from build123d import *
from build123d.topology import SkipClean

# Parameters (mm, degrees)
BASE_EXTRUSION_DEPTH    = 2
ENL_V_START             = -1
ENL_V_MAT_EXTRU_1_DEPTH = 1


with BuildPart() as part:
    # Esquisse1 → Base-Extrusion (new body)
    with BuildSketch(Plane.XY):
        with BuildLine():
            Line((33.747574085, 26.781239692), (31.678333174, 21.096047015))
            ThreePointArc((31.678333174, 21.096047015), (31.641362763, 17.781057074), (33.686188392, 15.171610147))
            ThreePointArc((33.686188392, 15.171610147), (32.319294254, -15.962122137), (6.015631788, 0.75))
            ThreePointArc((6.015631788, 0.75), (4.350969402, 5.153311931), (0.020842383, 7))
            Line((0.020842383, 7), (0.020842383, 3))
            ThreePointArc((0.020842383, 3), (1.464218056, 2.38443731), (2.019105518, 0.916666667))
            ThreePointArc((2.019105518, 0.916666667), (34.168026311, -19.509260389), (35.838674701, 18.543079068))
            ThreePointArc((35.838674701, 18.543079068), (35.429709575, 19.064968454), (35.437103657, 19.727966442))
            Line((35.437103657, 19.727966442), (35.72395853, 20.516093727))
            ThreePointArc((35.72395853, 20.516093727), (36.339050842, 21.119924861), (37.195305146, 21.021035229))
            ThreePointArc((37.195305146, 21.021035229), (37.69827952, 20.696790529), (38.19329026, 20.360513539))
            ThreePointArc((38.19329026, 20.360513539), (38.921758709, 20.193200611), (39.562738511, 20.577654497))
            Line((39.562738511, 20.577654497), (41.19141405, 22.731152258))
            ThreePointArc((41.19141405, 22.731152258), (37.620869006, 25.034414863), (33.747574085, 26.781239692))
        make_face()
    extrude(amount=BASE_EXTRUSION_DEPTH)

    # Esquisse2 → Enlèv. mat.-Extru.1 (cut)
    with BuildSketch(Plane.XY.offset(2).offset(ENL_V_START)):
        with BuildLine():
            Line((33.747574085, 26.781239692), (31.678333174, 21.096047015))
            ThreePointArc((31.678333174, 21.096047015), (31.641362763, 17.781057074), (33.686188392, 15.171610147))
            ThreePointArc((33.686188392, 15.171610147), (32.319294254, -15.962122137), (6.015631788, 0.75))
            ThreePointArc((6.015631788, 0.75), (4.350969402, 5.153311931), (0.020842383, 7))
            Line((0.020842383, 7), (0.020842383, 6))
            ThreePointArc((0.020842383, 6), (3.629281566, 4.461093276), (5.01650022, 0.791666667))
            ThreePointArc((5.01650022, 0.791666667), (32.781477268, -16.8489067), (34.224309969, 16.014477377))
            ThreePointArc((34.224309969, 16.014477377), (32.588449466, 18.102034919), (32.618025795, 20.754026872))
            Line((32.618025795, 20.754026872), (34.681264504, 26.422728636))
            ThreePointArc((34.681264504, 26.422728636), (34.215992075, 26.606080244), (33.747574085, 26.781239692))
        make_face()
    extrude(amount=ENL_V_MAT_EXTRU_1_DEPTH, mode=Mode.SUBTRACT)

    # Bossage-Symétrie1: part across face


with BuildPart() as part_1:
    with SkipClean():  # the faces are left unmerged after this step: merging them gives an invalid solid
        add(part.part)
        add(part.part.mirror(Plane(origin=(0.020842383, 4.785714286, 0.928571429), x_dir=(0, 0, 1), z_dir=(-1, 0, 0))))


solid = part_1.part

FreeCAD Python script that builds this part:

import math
import FreeCAD as App
import Part
import Sketcher
Q = App.Units.Quantity

doc = App.newDocument("Part")
body = doc.addObject("PartDesign::Body", "Body")

# Sketch on XY plane
sketch1 = body.newObject("Sketcher::SketchObject", "Sketch")
sketch1.AttachmentSupport = (doc.getObject("XY_Plane"), [""])
sketch1.MapMode = "FlatFace"
sketch1.addGeometry([
    Part.LineSegment(App.Vector(33.747574, 26.78124, 0), App.Vector(31.678333, 21.096047, 0)),  # 0
    Part.ArcOfCircle(Part.Circle(App.Vector(36.376796, 19.385946, 0), App.Vector(0, 0, 1), 5), math.radians(160), math.radians(237.444142)),  # 1
    Part.ArcOfCircle(Part.Circle(App.Vector(24, 0, 0), App.Vector(0, 0, 1), 18), math.radians(177.611985), math.radians(417.444142)),  # 2
    Part.ArcOfCircle(Part.Circle(App.Vector(0.020842, 1, 0), App.Vector(0, 0, 1), 6), math.radians(-2.388015), math.radians(90)),  # 3
    Part.LineSegment(App.Vector(0.020842, 7, 0), App.Vector(0.020842, 3, 0)),  # 4
    Part.ArcOfCircle(Part.Circle(App.Vector(0.020842, 1, 0), App.Vector(0, 0, 1), 2), math.radians(-2.388015), math.radians(90)),  # 5
    Part.ArcOfCircle(Part.Circle(App.Vector(24, 0, 0), App.Vector(0, 0, 1), 22), math.radians(177.611985), math.radians(417.444142)),  # 6
    Part.ArcOfCircle(Part.Circle(App.Vector(36.376796, 19.385946, 0), App.Vector(0, 0, 1), 1), math.radians(160), math.radians(237.444142)),  # 7
    Part.LineSegment(App.Vector(35.437104, 19.727966, 0), App.Vector(35.723959, 20.516094, 0)),  # 8
    Part.ArcOfCircle(Part.Circle(App.Vector(36.663651, 20.174074, 0), App.Vector(0, 0, 1), 1), math.radians(57.882723), math.radians(160)),  # 9
    Part.ArcOfCircle(Part.Circle(App.Vector(24.000001, 0.000001, 0), App.Vector(0, 0, 1), 24.819346), math.radians(55.119692), math.radians(57.882723)),  # 10
    Part.ArcOfCircle(Part.Circle(App.Vector(38.765154, 21.180862, 0), App.Vector(0, 0, 1), 1), math.radians(-124.880308), math.radians(-37.099966)),  # 11
    Part.LineSegment(App.Vector(39.562739, 20.577654, 0), App.Vector(41.191414, 22.731152, 0)),  # 12
    Part.ArcOfCircle(Part.Circle(App.Vector(24, 0, 0), App.Vector(0, 0, 1), 28.5), math.radians(52.900034), math.radians(70)),  # 13
], False)
sketch1.addConstraint([
    Sketcher.Constraint("Tangent", 0, 2, 1, 1),
    Sketcher.Constraint("Tangent", 1, 2, 2, 2),
    Sketcher.Constraint("Tangent", 2, 1, 3, 1),
    Sketcher.Constraint("Coincident", 3, 2, 4, 1),
    Sketcher.Constraint("Coincident", 4, 2, 5, 2),
    Sketcher.Constraint("Tangent", 5, 1, 6, 1),
    Sketcher.Constraint("Tangent", 6, 2, 7, 2),
    Sketcher.Constraint("Tangent", 7, 1, 8, 1),
    Sketcher.Constraint("Tangent", 8, 2, 9, 2),
    Sketcher.Constraint("Tangent", 9, 1, 10, 2),
    Sketcher.Constraint("Tangent", 10, 1, 11, 1),
    Sketcher.Constraint("Tangent", 11, 2, 12, 1),
    Sketcher.Constraint("Coincident", 12, 2, 13, 1),
    Sketcher.Constraint("Coincident", 13, 2, 0, 1),
    Sketcher.Constraint("Vertical", 4),
    Sketcher.Constraint("Coincident", 5, 3, 3, 3),
    Sketcher.Constraint("Coincident", 6, 3, 2, 3),
    Sketcher.Constraint("Coincident", 7, 3, 1, 3),
    Sketcher.Constraint("Coincident", 10, 3, 2, 3),
    Sketcher.Constraint("Coincident", 13, 3, 2, 3),
    Sketcher.Constraint("Equal", 7, 9),
    Sketcher.Constraint("Equal", 9, 11),
    Sketcher.Constraint("PointOnObject", 2, 3, -1),
    Sketcher.Constraint("Parallel", 0, 8),
    Sketcher.Constraint("Vertical", 5, 3, 3, 2),
    Sketcher.Constraint("Radius", 1, 5.0),
    Sketcher.Constraint("Radius", 2, 18.0),
    Sketcher.Constraint("Radius", 3, 6.0),
    Sketcher.Constraint("Radius", 5, 2.0),
    Sketcher.Constraint("Radius", 13, 28.5),
    Sketcher.Constraint("Angle", 0, Q("-110 deg")),
    Sketcher.Constraint("DistanceX", -1, 1, 2, 3, 24.0),
    Sketcher.Constraint("DistanceY", -1, 1, 3, 3, 1.0),
    Sketcher.Constraint("Radius", 10, 24.819346),
    Sketcher.Constraint("DistanceX", -1, 1, 9, 3, 36.663651),
    Sketcher.Constraint("DistanceX", -1, 1, 10, 1, 38.19329),
    Sketcher.Constraint("DistanceX", -1, 1, 11, 2, 39.562739),
])
pad1 = body.newObject("PartDesign::Pad", "Pad")
pad1.Profile = sketch1
pad1.Length = 2

# Sketch on XY plane
sketch2 = body.newObject("Sketcher::SketchObject", "Sketch001")
sketch2.AttachmentSupport = (doc.getObject("XY_Plane"), [""])
sketch2.MapMode = "FlatFace"
sketch2.AttachmentOffset = App.Placement(App.Vector(0, 0, 1), App.Rotation())
sketch2.addGeometry([
    Part.LineSegment(App.Vector(33.747574, 26.78124, 0), App.Vector(31.678333, 21.096047, 0)),  # 0
    Part.ArcOfCircle(Part.Circle(App.Vector(36.376796, 19.385946, 0), App.Vector(0, 0, 1), 5), math.radians(160), math.radians(237.444142)),  # 1
    Part.ArcOfCircle(Part.Circle(App.Vector(24, 0, 0), App.Vector(0, 0, 1), 18), math.radians(177.611985), math.radians(417.444142)),  # 2
    Part.ArcOfCircle(Part.Circle(App.Vector(0.020842, 1, 0), App.Vector(0, 0, 1), 6), math.radians(-2.388015), math.radians(90)),  # 3
    Part.LineSegment(App.Vector(0.020842, 7, 0), App.Vector(0.020842, 6, 0)),  # 4
    Part.ArcOfCircle(Part.Circle(App.Vector(0.020842, 1, 0), App.Vector(0, 0, 1), 5), math.radians(-2.388015), math.radians(90)),  # 5
    Part.ArcOfCircle(Part.Circle(App.Vector(24, 0, 0), App.Vector(0, 0, 1), 19), math.radians(177.611985), math.radians(417.444142)),  # 6
    Part.ArcOfCircle(Part.Circle(App.Vector(36.376796, 19.385946, 0), App.Vector(0, 0, 1), 4), math.radians(160), math.radians(237.444142)),  # 7
    Part.LineSegment(App.Vector(32.618026, 20.754027, 0), App.Vector(34.681265, 26.422729, 0)),  # 8
    Part.ArcOfCircle(Part.Circle(App.Vector(24.000002, 0.000005, 0), App.Vector(0, 0, 1), 28.499995), math.radians(67.989209), math.radians(70)),  # 9
], False)
sketch2.addConstraint([
    Sketcher.Constraint("Coincident", 0, 2, 1, 1),
    Sketcher.Constraint("Coincident", 1, 2, 2, 2),
    Sketcher.Constraint("Coincident", 2, 1, 3, 1),
    Sketcher.Constraint("Coincident", 3, 2, 4, 1),
    Sketcher.Constraint("Coincident", 4, 2, 5, 2),
    Sketcher.Constraint("Coincident", 5, 1, 6, 1),
    Sketcher.Constraint("Coincident", 6, 2, 7, 2),
    Sketcher.Constraint("Coincident", 7, 1, 8, 1),
    Sketcher.Constraint("Coincident", 8, 2, 9, 1),
    Sketcher.Constraint("Coincident", 9, 2, 0, 1),
    Sketcher.Constraint("Vertical", 4),
    Sketcher.Constraint("Coincident", 5, 3, 3, 3),
    Sketcher.Constraint("Coincident", 6, 3, 2, 3),
    Sketcher.Constraint("Coincident", 7, 3, 1, 3),
    Sketcher.Constraint("Coincident", 9, 3, 2, 3),
    Sketcher.Constraint("PointOnObject", 2, 3, -1),
    Sketcher.Constraint("Radius", 1, 5.0),
    Sketcher.Constraint("Radius", 2, 18.0),
    Sketcher.Constraint("Radius", 3, 6.0),
    Sketcher.Constraint("Radius", 5, 5.0),
    Sketcher.Constraint("DistanceX", -1, 1, 2, 3, 24.0),
    Sketcher.Constraint("DistanceY", -1, 1, 3, 3, 1.0),
    Sketcher.Constraint("DistanceY", -1, 1, 2, 1, 0.75),
    Sketcher.Constraint("Radius", 9, 28.499995),
    Sketcher.Constraint("DistanceX", -1, 1, 5, 1, 5.0165),
    Sketcher.Constraint("DistanceY", 1, 3, 0, 2, 1.710101),
    Sketcher.Constraint("DistanceY", 7, 1, 8, 2, 5.668702),
    Sketcher.Constraint("DistanceX", -1, 1, 1, 2, 33.686188),
    Sketcher.Constraint("DistanceX", -1, 1, 6, 2, 34.22431),
    Sketcher.Constraint("DistanceY", -1, 1, 8, 2, 26.422729),
    Sketcher.Constraint("DistanceY", -1, 1, 9, 2, 26.78124),
    Sketcher.Constraint("DistanceY", 9, 3, 1, 3, 19.385941),
    Sketcher.Constraint("DistanceX", 3, 2, 2, 1, 5.994789),
])
pocket1 = body.newObject("PartDesign::Pocket", "Pocket")
pocket1.Profile = sketch2
pocket1.Length = 1
pocket1.Reversed = True
body2 = doc.addObject("PartDesign::Body", "Body001")
doc.recompute()

body2.BaseFeature = body
doc.recompute()

mirroring = doc.addObject("Part::Mirroring", "Mirroring")
mirroring.Source = body
mirroring.Base = App.Vector(0.020842, 4.785714, 0.928571)
mirroring.Normal = App.Vector(-1, 0, 0)
body3 = doc.addObject("PartDesign::Body", "Body002")
body3.BaseFeature = mirroring
boolean = body2.newObject("PartDesign::Boolean", "Boolean")
boolean.Type = "Fuse"
boolean.addObjects([body3])
doc.recompute()
mirroring.Visibility = False

doc.recompute()
